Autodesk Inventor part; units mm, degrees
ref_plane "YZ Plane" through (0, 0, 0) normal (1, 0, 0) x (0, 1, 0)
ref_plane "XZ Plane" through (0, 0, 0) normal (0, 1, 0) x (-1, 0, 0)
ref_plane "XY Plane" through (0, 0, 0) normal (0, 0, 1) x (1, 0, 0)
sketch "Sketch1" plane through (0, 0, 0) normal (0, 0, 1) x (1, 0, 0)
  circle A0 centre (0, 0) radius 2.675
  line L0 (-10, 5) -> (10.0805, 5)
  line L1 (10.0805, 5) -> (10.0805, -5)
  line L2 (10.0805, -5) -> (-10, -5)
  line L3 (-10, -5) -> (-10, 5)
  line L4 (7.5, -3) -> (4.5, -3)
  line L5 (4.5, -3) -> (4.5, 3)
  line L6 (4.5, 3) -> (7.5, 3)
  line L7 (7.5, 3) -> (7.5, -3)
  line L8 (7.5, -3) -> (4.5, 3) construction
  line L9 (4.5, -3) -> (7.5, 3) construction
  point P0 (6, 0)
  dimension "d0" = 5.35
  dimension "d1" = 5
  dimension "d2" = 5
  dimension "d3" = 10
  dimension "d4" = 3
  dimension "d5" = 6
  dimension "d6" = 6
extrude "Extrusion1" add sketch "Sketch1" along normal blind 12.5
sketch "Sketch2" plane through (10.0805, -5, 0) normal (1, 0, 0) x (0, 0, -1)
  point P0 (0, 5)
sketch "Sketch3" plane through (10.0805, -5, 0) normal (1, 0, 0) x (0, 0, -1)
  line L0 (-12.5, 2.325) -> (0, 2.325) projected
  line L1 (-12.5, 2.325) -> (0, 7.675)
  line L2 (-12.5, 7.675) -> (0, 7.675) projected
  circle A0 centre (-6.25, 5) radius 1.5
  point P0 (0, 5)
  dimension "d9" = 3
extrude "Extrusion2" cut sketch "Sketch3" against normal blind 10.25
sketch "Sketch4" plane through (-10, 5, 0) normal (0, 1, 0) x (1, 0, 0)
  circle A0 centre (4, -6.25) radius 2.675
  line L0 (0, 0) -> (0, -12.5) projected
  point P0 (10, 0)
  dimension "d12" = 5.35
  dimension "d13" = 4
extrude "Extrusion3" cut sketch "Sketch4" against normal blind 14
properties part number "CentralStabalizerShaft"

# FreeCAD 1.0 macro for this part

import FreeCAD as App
import Part
import Sketcher

V = App.Vector
Q = App.Units.Quantity


def add_polygon(sketch, points):
    """Adds a closed chain of lines whose ends are joined by coincident constraints."""
    first, n = sketch.GeometryCount, len(points)
    for a, b in zip(points, points[1:] + points[:1]):
        sketch.addGeometry(Part.LineSegment(App.Vector(*a, 0), App.Vector(*b, 0)), False)
    for i in range(n):
        sketch.addConstraint(Sketcher.Constraint("Coincident", first + i, 2, first + (i + 1) % n, 1))

doc = App.newDocument("Part")
body = doc.addObject("PartDesign::Body", "Body")

# Sketch on XY plane
sketch1 = body.newObject("Sketcher::SketchObject", "Sketch")
sketch1.AttachmentSupport = (doc.getObject("XY_Plane"), [""])
sketch1.MapMode = "FlatFace"
add_polygon(sketch1, [(10.1, 5), (-10, 5), (-10, -5), (10.1, -5)])  # lines 0-3
sketch1.addGeometry(Part.Circle(V(0, 0, 0), V(0, 0, 1), 2.7), False)  # 4
add_polygon(sketch1, [(7.5, 3), (7.5, -3), (4.5, -3), (4.5, 3)])  # lines 5-8
sketch1.addConstraint(Sketcher.Constraint("Horizontal", 0))
sketch1.addConstraint(Sketcher.Constraint("Vertical", 1))
sketch1.addConstraint(Sketcher.Constraint("Horizontal", 2))
sketch1.addConstraint(Sketcher.Constraint("Vertical", 3))
sketch1.addConstraint(Sketcher.Constraint("Vertical", 5))
sketch1.addConstraint(Sketcher.Constraint("Horizontal", 6))
sketch1.addConstraint(Sketcher.Constraint("Vertical", 7))
sketch1.addConstraint(Sketcher.Constraint("Horizontal", 8))
sketch1.addConstraint(Sketcher.Constraint("Coincident", 4, 3, -1, 1))
sketch1.addConstraint(Sketcher.Constraint("Diameter", 4, Q("5.35 mm")))
sketch1.addConstraint(Sketcher.Constraint("DistanceX", 6, 2, 6, 1, Q("3 mm")))
sketch1.addConstraint(Sketcher.Constraint("DistanceY", 1, 2, 1, 1, Q("10 mm")))
sketch1.addConstraint(Sketcher.Constraint("DistanceY", 5, 2, 5, 1, Q("6 mm")))
sketch1.addConstraint(Sketcher.Constraint("DistanceX", 0, 2, -1, 1, Q("10 mm")))
sketch1.addConstraint(Sketcher.Constraint("DistanceY", -1, 1, 0, 2, Q("5 mm")))
sketch1.addConstraint(Sketcher.Constraint("DistanceY", 5, 2, -1, 1, Q("3 mm")))
sketch1.addConstraint(Sketcher.Constraint("DistanceX", -1, 1, 5, 2, Q("7.5 mm")))
sketch1.addConstraint(Sketcher.Constraint("DistanceX", 0, 2, 0, 1, Q("20.0805 mm")))
pad1 = body.newObject("PartDesign::Pad", "Pad")
pad1.Profile = sketch1
pad1.Length = 12.5

# Sketch on YZ plane
sketch2 = body.newObject("Sketcher::SketchObject", "Sketch001")
sketch2.AttachmentSupport = (doc.getObject("YZ_Plane"), [""])
sketch2.MapMode = "FlatFace"
sketch2.AttachmentOffset = App.Placement(V(0, 0, 10.0805), App.Rotation())
sketch2.addGeometry(Part.Circle(V(0, 6.2, 0), V(0, 0, 1), 1.5), False)
sketch2.addConstraint(Sketcher.Constraint("PointOnObject", 0, 3, -2))
sketch2.addConstraint(Sketcher.Constraint("Diameter", 0, Q("3 mm")))
sketch2.addConstraint(Sketcher.Constraint("DistanceY", -1, 1, 0, 3, Q("6.25 mm")))
pocket1 = body.newObject("PartDesign::Pocket", "Pocket")
pocket1.Profile = sketch2
pocket1.Length = 10.25

# Sketch on XZ plane
sketch3 = body.newObject("Sketcher::SketchObject", "Sketch002")
sketch3.AttachmentSupport = (doc.getObject("XZ_Plane"), [""])
sketch3.MapMode = "FlatFace"
sketch3.AttachmentOffset = App.Placement(V(0, 0, -5), App.Rotation())
sketch3.addGeometry(Part.Circle(V(-6, 6.2, 0), V(0, 0, 1), 2.7), False)
sketch3.addConstraint(Sketcher.Constraint("Diameter", 0, Q("5.35 mm")))
sketch3.addConstraint(Sketcher.Constraint("DistanceX", 0, 3, -1, 1, Q("6 mm")))
sketch3.addConstraint(Sketcher.Constraint("DistanceY", -1, 1, 0, 3, Q("6.25 mm")))
pocket2 = body.newObject("PartDesign::Pocket", "Pocket001")
pocket2.Profile = sketch3
pocket2.Length = 14
pocket2.Reversed = True

doc.recompute()
